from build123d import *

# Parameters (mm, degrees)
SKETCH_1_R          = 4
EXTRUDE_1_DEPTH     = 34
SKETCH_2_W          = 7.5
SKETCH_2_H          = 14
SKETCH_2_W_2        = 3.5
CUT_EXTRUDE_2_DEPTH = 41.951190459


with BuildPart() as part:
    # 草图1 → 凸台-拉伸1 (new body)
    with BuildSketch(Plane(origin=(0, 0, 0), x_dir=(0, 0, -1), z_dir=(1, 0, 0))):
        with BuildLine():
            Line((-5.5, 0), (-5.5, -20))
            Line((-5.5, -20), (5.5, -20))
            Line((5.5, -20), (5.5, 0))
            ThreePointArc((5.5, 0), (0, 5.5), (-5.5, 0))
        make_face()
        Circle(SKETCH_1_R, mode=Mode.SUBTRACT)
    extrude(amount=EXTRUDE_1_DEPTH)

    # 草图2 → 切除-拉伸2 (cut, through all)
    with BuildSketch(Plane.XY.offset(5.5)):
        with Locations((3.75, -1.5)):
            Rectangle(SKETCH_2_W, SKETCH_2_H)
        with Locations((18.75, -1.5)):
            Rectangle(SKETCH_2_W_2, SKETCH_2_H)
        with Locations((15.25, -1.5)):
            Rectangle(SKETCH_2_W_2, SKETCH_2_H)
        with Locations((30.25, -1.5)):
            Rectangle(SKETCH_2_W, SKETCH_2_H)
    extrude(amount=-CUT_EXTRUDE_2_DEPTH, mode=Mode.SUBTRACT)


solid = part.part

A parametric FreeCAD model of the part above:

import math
import FreeCAD as App
import Part
import Sketcher


def add_polygon(sketch, points):
    """Adds a closed chain of lines whose ends are joined by coincident constraints."""
    first, n = sketch.GeometryCount, len(points)
    for a, b in zip(points, points[1:] + points[:1]):
        sketch.addGeometry(Part.LineSegment(App.Vector(*a, 0), App.Vector(*b, 0)), False)
    for i in range(n):
        sketch.addConstraint(Sketcher.Constraint("Coincident", first + i, 2, first + (i + 1) % n, 1))

doc = App.newDocument("Part")
body = doc.addObject("PartDesign::Body", "Body")

# Sketch on YZ plane
sketch1 = doc.addObject("Sketcher::SketchObject", "Sketch")
body.addObject(sketch1)
sketch1.AttachmentSupport = (doc.YZ_Plane, [""])
sketch1.MapMode = "FlatFace"
sketch1.addGeometry(Part.LineSegment(App.Vector(0, 5.5, 0), App.Vector(-20, 5.5, 0)), False)
sketch1.addGeometry(Part.LineSegment(App.Vector(-20, 5.5, 0), App.Vector(-20, -5.5, 0)), False)
sketch1.addGeometry(Part.LineSegment(App.Vector(-20, -5.5, 0), App.Vector(0, -5.5, 0)), False)
sketch1.addGeometry(Part.ArcOfCircle(Part.Circle(App.Vector(0, 0, 0), App.Vector(0, 0, 1), 5.5), math.radians(-90), math.radians(90)), False)
sketch1.addGeometry(Part.Circle(App.Vector(0, 0, 0), App.Vector(0, 0, 1), 4), False)
sketch1.addConstraint(Sketcher.Constraint("Coincident", 0, 2, 1, 1))
sketch1.addConstraint(Sketcher.Constraint("Coincident", 1, 2, 2, 1))
sketch1.addConstraint(Sketcher.Constraint("Tangent", 2, 2, 3, 1))
sketch1.addConstraint(Sketcher.Constraint("Tangent", 3, 2, 0, 1))
sketch1.addConstraint(Sketcher.Constraint("Horizontal", 0))
sketch1.addConstraint(Sketcher.Constraint("Vertical", 1))
sketch1.addConstraint(Sketcher.Constraint("Horizontal", 2))
sketch1.addConstraint(Sketcher.Constraint("Coincident", 3, 3, -1, 1))
sketch1.addConstraint(Sketcher.Constraint("Coincident", 4, 3, -1, 1))
sketch1.addConstraint(Sketcher.Constraint("Diameter", 4, 8.0))
sketch1.addConstraint(Sketcher.Constraint("Radius", 3, 5.5))
sketch1.addConstraint(Sketcher.Constraint("DistanceX", 0, 2, 0, 1, 20.0))
pad1 = doc.addObject("PartDesign::Pad", "Pad")
body.addObject(pad1)
pad1.Profile = sketch1
pad1.Length = 34

# Sketch on XY plane
sketch2 = doc.addObject("Sketcher::SketchObject", "Sketch001")
body.addObject(sketch2)
sketch2.AttachmentSupport = (doc.XY_Plane, [""])
sketch2.MapMode = "FlatFace"
sketch2.AttachmentOffset = App.Placement(App.Vector(0, 0, 5.5), App.Rotation())
add_polygon(sketch2, [(0, 5.5), (0, -8.5), (7.5, -8.5), (7.5, 5.5)])  # lines 0-3
add_polygon(sketch2, [(20.5, -8.5), (20.5, 5.5), (13.5, 5.5), (13.5, -8.5)])  # lines 4-7
add_polygon(sketch2, [(26.5, 5.5), (26.5, -8.5), (34, -8.5), (34, 5.5)])  # lines 8-11
sketch2.addConstraint(Sketcher.Constraint("Vertical", 0))
sketch2.addConstraint(Sketcher.Constraint("Horizontal", 1))
sketch2.addConstraint(Sketcher.Constraint("Vertical", 2))
sketch2.addConstraint(Sketcher.Constraint("Horizontal", 3))
sketch2.addConstraint(Sketcher.Constraint("Vertical", 4))
sketch2.addConstraint(Sketcher.Constraint("Horizontal", 5))
sketch2.addConstraint(Sketcher.Constraint("Vertical", 6))
sketch2.addConstraint(Sketcher.Constraint("Horizontal", 7))
sketch2.addConstraint(Sketcher.Constraint("Vertical", 8))
sketch2.addConstraint(Sketcher.Constraint("Horizontal", 9))
sketch2.addConstraint(Sketcher.Constraint("Vertical", 10))
sketch2.addConstraint(Sketcher.Constraint("Horizontal", 11))
sketch2.addConstraint(Sketcher.Constraint("PointOnObject", 0, 2, -2))
sketch2.addConstraint(Sketcher.Constraint("Horizontal", 3, 2, 4, 2))
sketch2.addConstraint(Sketcher.Constraint("Horizontal", 1, 2, 6, 2))
sketch2.addConstraint(Sketcher.Constraint("Horizontal", 7, 2, 8, 2))
sketch2.addConstraint(Sketcher.Constraint("Horizontal", 5, 2, 10, 2))
sketch2.addConstraint(Sketcher.Constraint("Equal", 3, 9))
sketch2.addConstraint(Sketcher.Constraint("DistanceX", 5, 2, 5, 1, 7.0))
sketch2.addConstraint(Sketcher.Constraint("DistanceY", 0, 2, 0, 1, 14.0))
sketch2.addConstraint(Sketcher.Constraint("DistanceX", 1, 1, 1, 2, 7.5))
sketch2.addConstraint(Sketcher.Constraint("DistanceX", -1, 1, 9, 2, 34.0))
sketch2.addConstraint(Sketcher.Constraint("DistanceX", 2, 2, 4, 2, 13.0))
sketch2.addConstraint(Sketcher.Constraint("DistanceY", 0, 2, -1, 1, 8.5))
pocket1 = doc.addObject("PartDesign::Pocket", "Pocket")
body.addObject(pocket1)
pocket1.Profile = sketch2
pocket1.Type = "ThroughAll"

doc.recompute()
